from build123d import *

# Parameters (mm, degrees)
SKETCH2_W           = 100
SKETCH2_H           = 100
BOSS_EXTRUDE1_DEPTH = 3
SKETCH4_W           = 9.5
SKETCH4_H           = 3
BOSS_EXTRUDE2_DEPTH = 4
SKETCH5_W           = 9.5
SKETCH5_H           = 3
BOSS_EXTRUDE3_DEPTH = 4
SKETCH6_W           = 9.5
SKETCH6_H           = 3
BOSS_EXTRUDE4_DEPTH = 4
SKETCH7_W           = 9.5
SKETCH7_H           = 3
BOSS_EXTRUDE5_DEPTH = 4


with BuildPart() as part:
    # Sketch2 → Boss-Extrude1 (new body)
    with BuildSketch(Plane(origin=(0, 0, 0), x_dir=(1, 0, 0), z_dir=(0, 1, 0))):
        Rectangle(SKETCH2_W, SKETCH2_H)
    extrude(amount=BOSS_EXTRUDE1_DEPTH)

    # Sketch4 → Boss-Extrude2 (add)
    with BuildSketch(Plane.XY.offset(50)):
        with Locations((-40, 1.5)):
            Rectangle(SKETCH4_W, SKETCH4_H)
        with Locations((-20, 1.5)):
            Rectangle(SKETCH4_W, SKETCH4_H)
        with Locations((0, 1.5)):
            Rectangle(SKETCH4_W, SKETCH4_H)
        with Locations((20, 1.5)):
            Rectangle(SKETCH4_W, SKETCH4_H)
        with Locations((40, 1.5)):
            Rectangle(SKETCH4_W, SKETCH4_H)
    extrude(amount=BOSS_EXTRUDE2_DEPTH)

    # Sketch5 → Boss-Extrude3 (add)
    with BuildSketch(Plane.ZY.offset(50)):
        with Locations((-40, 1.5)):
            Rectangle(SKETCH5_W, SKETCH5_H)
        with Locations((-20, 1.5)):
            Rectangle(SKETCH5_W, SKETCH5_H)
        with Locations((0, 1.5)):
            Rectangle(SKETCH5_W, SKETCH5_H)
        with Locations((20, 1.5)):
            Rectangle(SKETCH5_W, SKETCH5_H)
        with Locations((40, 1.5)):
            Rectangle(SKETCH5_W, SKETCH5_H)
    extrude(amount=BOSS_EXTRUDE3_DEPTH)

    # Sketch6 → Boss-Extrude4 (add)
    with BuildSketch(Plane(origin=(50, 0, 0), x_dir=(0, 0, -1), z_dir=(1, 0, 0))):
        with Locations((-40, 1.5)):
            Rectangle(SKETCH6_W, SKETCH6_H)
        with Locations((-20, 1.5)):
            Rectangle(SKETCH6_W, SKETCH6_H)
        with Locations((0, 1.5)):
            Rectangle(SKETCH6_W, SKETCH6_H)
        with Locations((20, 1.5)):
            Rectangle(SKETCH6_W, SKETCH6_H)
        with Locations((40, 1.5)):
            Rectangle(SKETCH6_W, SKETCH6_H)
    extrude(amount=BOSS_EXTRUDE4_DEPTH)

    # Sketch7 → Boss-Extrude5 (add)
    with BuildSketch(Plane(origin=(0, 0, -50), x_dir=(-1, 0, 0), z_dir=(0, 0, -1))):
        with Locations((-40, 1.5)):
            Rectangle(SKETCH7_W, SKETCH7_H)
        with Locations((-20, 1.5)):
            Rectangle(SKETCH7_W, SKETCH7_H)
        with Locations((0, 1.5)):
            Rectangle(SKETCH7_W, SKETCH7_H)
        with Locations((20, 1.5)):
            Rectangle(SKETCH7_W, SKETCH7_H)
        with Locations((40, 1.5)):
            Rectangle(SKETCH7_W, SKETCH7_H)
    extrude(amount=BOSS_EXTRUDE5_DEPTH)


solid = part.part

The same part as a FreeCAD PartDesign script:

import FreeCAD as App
import Part
import Sketcher

V = App.Vector
Q = App.Units.Quantity

doc = App.newDocument("Part")
body = doc.addObject("PartDesign::Body", "Body")

sketch1 = doc.addObject("Sketcher::SketchObject", "Sketch")
body.addObject(sketch1)
sketch1.AttachmentSupport = (doc.XZ_Plane, [""])
sketch1.MapMode = "FlatFace"
sketch1.addGeometry([
    Part.LineSegment(V(-50, -50, 0), V(-50, 50, 0)),
    Part.LineSegment(V(-50, 50, 0), V(50, 50, 0)),
    Part.LineSegment(V(50, 50, 0), V(50, -50, 0)),
    Part.LineSegment(V(50, -50, 0), V(-50, -50, 0)),
], False)
sketch1.addConstraint([
    Sketcher.Constraint("Coincident", 0, 2, 1, 1),
    Sketcher.Constraint("Coincident", 1, 2, 2, 1),
    Sketcher.Constraint("Coincident", 2, 2, 3, 1),
    Sketcher.Constraint("Coincident", 3, 2, 0, 1),
    Sketcher.Constraint("Vertical", 0),
    Sketcher.Constraint("Horizontal", 1),
    Sketcher.Constraint("Vertical", 2),
    Sketcher.Constraint("Horizontal", 3),
    Sketcher.Constraint("Symmetric", 0, 2, 2, 2, -1, 1),
    Sketcher.Constraint("Equal", 3, 0),
    Sketcher.Constraint("DistanceX", 1, 1, 1, 2, Q("100 mm")),
])
pad1 = doc.addObject("PartDesign::Pad", "Pad")
body.addObject(pad1)
pad1.Profile = sketch1
pad1.Length = 3
pad1.Reversed = True

sketch2 = doc.addObject("Sketcher::SketchObject", "Sketch001")
body.addObject(sketch2)
sketch2.AttachmentSupport = (doc.XY_Plane, [""])
sketch2.MapMode = "FlatFace"
sketch2.AttachmentOffset = App.Placement(V(0, 0, 50), App.Rotation())
sketch2.addGeometry([
    Part.LineSegment(V(-44.75, 3, 0), V(-44.75, 0, 0)),
    Part.LineSegment(V(-44.75, 0, 0), V(-35.25, 0, 0)),
    Part.LineSegment(V(-35.25, 0, 0), V(-35.25, 3, 0)),
    Part.LineSegment(V(-35.25, 3, 0), V(-44.75, 3, 0)),
    Part.LineSegment(V(-24.75, 3, 0), V(-24.75, 0, 0)),
    Part.LineSegment(V(-24.75, 0, 0), V(-15.25, 0, 0)),
    Part.LineSegment(V(-15.25, 0, 0), V(-15.25, 3, 0)),
    Part.LineSegment(V(-15.25, 3, 0), V(-24.75, 3, 0)),
    Part.LineSegment(V(-4.75, 3, 0), V(-4.75, 0, 0)),
    Part.LineSegment(V(-4.75, 0, 0), V(4.75, 0, 0)),
    Part.LineSegment(V(4.75, 0, 0), V(4.75, 3, 0)),
    Part.LineSegment(V(4.75, 3, 0), V(-4.75, 3, 0)),
    Part.LineSegment(V(15.25, 3, 0), V(15.25, 0, 0)),
    Part.LineSegment(V(15.25, 0, 0), V(24.75, 0, 0)),
    Part.LineSegment(V(24.75, 0, 0), V(24.75, 3, 0)),
    Part.LineSegment(V(24.75, 3, 0), V(15.25, 3, 0)),
    Part.LineSegment(V(35.25, 3, 0), V(35.25, 0, 0)),
    Part.LineSegment(V(35.25, 0, 0), V(44.75, 0, 0)),
    Part.LineSegment(V(44.75, 0, 0), V(44.75, 3, 0)),
    Part.LineSegment(V(44.75, 3, 0), V(35.25, 3, 0)),
], False)
sketch2.addConstraint([
    Sketcher.Constraint("Coincident", 0, 2, 1, 1),
    Sketcher.Constraint("Coincident", 1, 2, 2, 1),
    Sketcher.Constraint("Coincident", 2, 2, 3, 1),
    Sketcher.Constraint("Coincident", 3, 2, 0, 1),
    Sketcher.Constraint("Coincident", 4, 2, 5, 1),
    Sketcher.Constraint("Coincident", 5, 2, 6, 1),
    Sketcher.Constraint("Coincident", 6, 2, 7, 1),
    Sketcher.Constraint("Coincident", 7, 2, 4, 1),
    Sketcher.Constraint("Coincident", 8, 2, 9, 1),
    Sketcher.Constraint("Coincident", 9, 2, 10, 1),
    Sketcher.Constraint("Coincident", 10, 2, 11, 1),
    Sketcher.Constraint("Coincident", 11, 2, 8, 1),
    Sketcher.Constraint("Coincident", 12, 2, 13, 1),
    Sketcher.Constraint("Coincident", 13, 2, 14, 1),
    Sketcher.Constraint("Coincident", 14, 2, 15, 1),
    Sketcher.Constraint("Coincident", 15, 2, 12, 1),
    Sketcher.Constraint("Coincident", 16, 2, 17, 1),
    Sketcher.Constraint("Coincident", 17, 2, 18, 1),
    Sketcher.Constraint("Coincident", 18, 2, 19, 1),
    Sketcher.Constraint("Coincident", 19, 2, 16, 1),
    Sketcher.Constraint("Vertical", 0),
    Sketcher.Constraint("Horizontal", 1),
    Sketcher.Constraint("Vertical", 2),
    Sketcher.Constraint("Horizontal", 3),
    Sketcher.Constraint("Vertical", 4),
    Sketcher.Constraint("Horizontal", 5),
    Sketcher.Constraint("Vertical", 6),
    Sketcher.Constraint("Horizontal", 7),
    Sketcher.Constraint("Vertical", 8),
    Sketcher.Constraint("Horizontal", 9),
    Sketcher.Constraint("Vertical", 10),
    Sketcher.Constraint("Horizontal", 11),
    Sketcher.Constraint("Vertical", 12),
    Sketcher.Constraint("Horizontal", 13),
    Sketcher.Constraint("Vertical", 14),
    Sketcher.Constraint("Horizontal", 15),
    Sketcher.Constraint("Vertical", 16),
    Sketcher.Constraint("Horizontal", 17),
    Sketcher.Constraint("Vertical", 18),
    Sketcher.Constraint("Horizontal", 19),
    Sketcher.Constraint("Symmetric", 8, 2, 9, 2, -1, 1),
    Sketcher.Constraint("Symmetric", 5, 2, 12, 2, -1, 1),
    Sketcher.Constraint("Symmetric", 1, 2, 16, 2, -1, 1),
    Sketcher.Constraint("Symmetric", 4, 2, 13, 2, -2),
    Sketcher.Constraint("Symmetric", 0, 2, 17, 2, -2),
    Sketcher.Constraint("Horizontal", 3, 2, 6, 2),
    Sketcher.Constraint("Horizontal", 7, 2, 10, 2),
    Sketcher.Constraint("Horizontal", 11, 2, 14, 2),
    Sketcher.Constraint("Horizontal", 15, 2, 18, 2),
    Sketcher.Constraint("Equal", 3, 5),
    Sketcher.Constraint("Equal", 7, 9),
    Sketcher.Constraint("DistanceY", 0, 2, 0, 1, Q("3 mm")),
    Sketcher.Constraint("DistanceX", 1, 1, 1, 2, Q("9.5 mm")),
    Sketcher.Constraint("DistanceX", 0, 2, 4, 2, Q("20 mm")),
    Sketcher.Constraint("DistanceX", 4, 2, 8, 2, Q("20 mm")),
])
pad2 = doc.addObject("PartDesign::Pad", "Pad001")
body.addObject(pad2)
pad2.Profile = sketch2
pad2.Length = 4

sketch3 = doc.addObject("Sketcher::SketchObject", "Sketch002")
body.addObject(sketch3)
sketch3.AttachmentSupport = (doc.YZ_Plane, [""])
sketch3.MapMode = "FlatFace"
sketch3.AttachmentOffset = App.Placement(V(0, 0, -50), App.Rotation())
sketch3.addGeometry([
    Part.LineSegment(V(3, -44.75, 0), V(0, -44.75, 0)),
    Part.LineSegment(V(0, -44.75, 0), V(0, -35.25, 0)),
    Part.LineSegment(V(0, -35.25, 0), V(3, -35.25, 0)),
    Part.LineSegment(V(3, -35.25, 0), V(3, -44.75, 0)),
    Part.LineSegment(V(3, -24.75, 0), V(0, -24.75, 0)),
    Part.LineSegment(V(0, -24.75, 0), V(0, -15.25, 0)),
    Part.LineSegment(V(0, -15.25, 0), V(3, -15.25, 0)),
    Part.LineSegment(V(3, -15.25, 0), V(3, -24.75, 0)),
    Part.LineSegment(V(3, -4.75, 0), V(0, -4.75, 0)),
    Part.LineSegment(V(0, -4.75, 0), V(0, 4.75, 0)),
    Part.LineSegment(V(0, 4.75, 0), V(3, 4.75, 0)),
    Part.LineSegment(V(3, 4.75, 0), V(3, -4.75, 0)),
    Part.LineSegment(V(3, 15.25, 0), V(0, 15.25, 0)),
    Part.LineSegment(V(0, 15.25, 0), V(0, 24.75, 0)),
    Part.LineSegment(V(0, 24.75, 0), V(3, 24.75, 0)),
    Part.LineSegment(V(3, 24.75, 0), V(3, 15.25, 0)),
    Part.LineSegment(V(3, 35.25, 0), V(0, 35.25, 0)),
    Part.LineSegment(V(0, 35.25, 0), V(0, 44.75, 0)),
    Part.LineSegment(V(0, 44.75, 0), V(3, 44.75, 0)),
    Part.LineSegment(V(3, 44.75, 0), V(3, 35.25, 0)),
], False)
sketch3.addConstraint([
    Sketcher.Constraint("Coincident", 0, 2, 1, 1),
    Sketcher.Constraint("Coincident", 1, 2, 2, 1),
    Sketcher.Constraint("Coincident", 2, 2, 3, 1),
    Sketcher.Constraint("Coincident", 3, 2, 0, 1),
    Sketcher.Constraint("Coincident", 4, 2, 5, 1),
    Sketcher.Constraint("Coincident", 5, 2, 6, 1),
    Sketcher.Constraint("Coincident", 6, 2, 7, 1),
    Sketcher.Constraint("Coincident", 7, 2, 4, 1),
    Sketcher.Constraint("Coincident", 8, 2, 9, 1),
    Sketcher.Constraint("Coincident", 9, 2, 10, 1),
    Sketcher.Constraint("Coincident", 10, 2, 11, 1),
    Sketcher.Constraint("Coincident", 11, 2, 8, 1),
    Sketcher.Constraint("Coincident", 12, 2, 13, 1),
    Sketcher.Constraint("Coincident", 13, 2, 14, 1),
    Sketcher.Constraint("Coincident", 14, 2, 15, 1),
    Sketcher.Constraint("Coincident", 15, 2, 12, 1),
    Sketcher.Constraint("Coincident", 16, 2, 17, 1),
    Sketcher.Constraint("Coincident", 17, 2, 18, 1),
    Sketcher.Constraint("Coincident", 18, 2, 19, 1),
    Sketcher.Constraint("Coincident", 19, 2, 16, 1),
    Sketcher.Constraint("Horizontal", 0),
    Sketcher.Constraint("Vertical", 1),
    Sketcher.Constraint("Horizontal", 2),
    Sketcher.Constraint("Vertical", 3),
    Sketcher.Constraint("Horizontal", 4),
    Sketcher.Constraint("Vertical", 5),
    Sketcher.Constraint("Horizontal", 6),
    Sketcher.Constraint("Vertical", 7),
    Sketcher.Constraint("Horizontal", 8),
    Sketcher.Constraint("Vertical", 9),
    Sketcher.Constraint("Horizontal", 10),
    Sketcher.Constraint("Vertical", 11),
    Sketcher.Constraint("Horizontal", 12),
    Sketcher.Constraint("Vertical", 13),
    Sketcher.Constraint("Horizontal", 14),
    Sketcher.Constraint("Vertical", 15),
    Sketcher.Constraint("Horizontal", 16),
    Sketcher.Constraint("Vertical", 17),
    Sketcher.Constraint("Horizontal", 18),
    Sketcher.Constraint("Vertical", 19),
    Sketcher.Constraint("Symmetric", 8, 2, 9, 2, -1, 1),
    Sketcher.Constraint("Symmetric", 5, 2, 12, 2, -1, 1),
    Sketcher.Constraint("Symmetric", 1, 2, 16, 2, -1, 1),
    Sketcher.Constraint("Symmetric", 4, 2, 13, 2, -1),
    Sketcher.Constraint("Symmetric", 0, 2, 17, 2, -1),
    Sketcher.Constraint("Vertical", 3, 2, 6, 2),
    Sketcher.Constraint("Vertical", 7, 2, 10, 2),
    Sketcher.Constraint("Vertical", 11, 2, 14, 2),
    Sketcher.Constraint("Vertical", 15, 2, 18, 2),
    Sketcher.Constraint("Equal", 3, 5),
    Sketcher.Constraint("Equal", 7, 9),
    Sketcher.Constraint("DistanceX", 0, 2, 0, 1, Q("3 mm")),
    Sketcher.Constraint("DistanceY", 1, 1, 1, 2, Q("9.5 mm")),
    Sketcher.Constraint("DistanceY", 0, 2, 4, 2, Q("20 mm")),
    Sketcher.Constraint("DistanceY", 4, 2, 8, 2, Q("20 mm")),
])
pad3 = doc.addObject("PartDesign::Pad", "Pad002")
body.addObject(pad3)
pad3.Profile = sketch3
pad3.Length = 4
pad3.Reversed = True

sketch4 = doc.addObject("Sketcher::SketchObject", "Sketch003")
body.addObject(sketch4)
sketch4.AttachmentSupport = (doc.YZ_Plane, [""])
sketch4.MapMode = "FlatFace"
sketch4.AttachmentOffset = App.Placement(V(0, 0, 50), App.Rotation())
sketch4.addGeometry([
    Part.LineSegment(V(3, 44.75, 0), V(0, 44.75, 0)),
    Part.LineSegment(V(0, 44.75, 0), V(0, 35.25, 0)),
    Part.LineSegment(V(0, 35.25, 0), V(3, 35.25, 0)),
    Part.LineSegment(V(3, 35.25, 0), V(3, 44.75, 0)),
    Part.LineSegment(V(3, 24.75, 0), V(0, 24.75, 0)),
    Part.LineSegment(V(0, 24.75, 0), V(0, 15.25, 0)),
    Part.LineSegment(V(0, 15.25, 0), V(3, 15.25, 0)),
    Part.LineSegment(V(3, 15.25, 0), V(3, 24.75, 0)),
    Part.LineSegment(V(3, 4.75, 0), V(0, 4.75, 0)),
    Part.LineSegment(V(0, 4.75, 0), V(0, -4.75, 0)),
    Part.LineSegment(V(0, -4.75, 0), V(3, -4.75, 0)),
    Part.LineSegment(V(3, -4.75, 0), V(3, 4.75, 0)),
    Part.LineSegment(V(3, -15.25, 0), V(0, -15.25, 0)),
    Part.LineSegment(V(0, -15.25, 0), V(0, -24.75, 0)),
    Part.LineSegment(V(0, -24.75, 0), V(3, -24.75, 0)),
    Part.LineSegment(V(3, -24.75, 0), V(3, -15.25, 0)),
    Part.LineSegment(V(3, -35.25, 0), V(0, -35.25, 0)),
    Part.LineSegment(V(0, -35.25, 0), V(0, -44.75, 0)),
    Part.LineSegment(V(0, -44.75, 0), V(3, -44.75, 0)),
    Part.LineSegment(V(3, -44.75, 0), V(3, -35.25, 0)),
], False)
sketch4.addConstraint([
    Sketcher.Constraint("Coincident", 0, 2, 1, 1),
    Sketcher.Constraint("Coincident", 1, 2, 2, 1),
    Sketcher.Constraint("Coincident", 2, 2, 3, 1),
    Sketcher.Constraint("Coincident", 3, 2, 0, 1),
    Sketcher.Constraint("Coincident", 4, 2, 5, 1),
    Sketcher.Constraint("Coincident", 5, 2, 6, 1),
    Sketcher.Constraint("Coincident", 6, 2, 7, 1),
    Sketcher.Constraint("Coincident", 7, 2, 4, 1),
    Sketcher.Constraint("Coincident", 8, 2, 9, 1),
    Sketcher.Constraint("Coincident", 9, 2, 10, 1),
    Sketcher.Constraint("Coincident", 10, 2, 11, 1),
    Sketcher.Constraint("Coincident", 11, 2, 8, 1),
    Sketcher.Constraint("Coincident", 12, 2, 13, 1),
    Sketcher.Constraint("Coincident", 13, 2, 14, 1),
    Sketcher.Constraint("Coincident", 14, 2, 15, 1),
    Sketcher.Constraint("Coincident", 15, 2, 12, 1),
    Sketcher.Constraint("Coincident", 16, 2, 17, 1),
    Sketcher.Constraint("Coincident", 17, 2, 18, 1),
    Sketcher.Constraint("Coincident", 18, 2, 19, 1),
    Sketcher.Constraint("Coincident", 19, 2, 16, 1),
    Sketcher.Constraint("Horizontal", 0),
    Sketcher.Constraint("Vertical", 1),
    Sketcher.Constraint("Horizontal", 2),
    Sketcher.Constraint("Vertical", 3),
    Sketcher.Constraint("Horizontal", 4),
    Sketcher.Constraint("Vertical", 5),
    Sketcher.Constraint("Horizontal", 6),
    Sketcher.Constraint("Vertical", 7),
    Sketcher.Constraint("Horizontal", 8),
    Sketcher.Constraint("Vertical", 9),
    Sketcher.Constraint("Horizontal", 10),
    Sketcher.Constraint("Vertical", 11),
    Sketcher.Constraint("Horizontal", 12),
    Sketcher.Constraint("Vertical", 13),
    Sketcher.Constraint("Horizontal", 14),
    Sketcher.Constraint("Vertical", 15),
    Sketcher.Constraint("Horizontal", 16),
    Sketcher.Constraint("Vertical", 17),
    Sketcher.Constraint("Horizontal", 18),
    Sketcher.Constraint("Vertical", 19),
    Sketcher.Constraint("Symmetric", 8, 2, 9, 2, -1, 1),
    Sketcher.Constraint("Symmetric", 5, 2, 12, 2, -1, 1),
    Sketcher.Constraint("Symmetric", 1, 2, 16, 2, -1, 1),
    Sketcher.Constraint("Symmetric", 4, 2, 13, 2, -1),
    Sketcher.Constraint("Symmetric", 0, 2, 17, 2, -1),
    Sketcher.Constraint("Vertical", 3, 2, 6, 2),
    Sketcher.Constraint("Vertical", 7, 2, 10, 2),
    Sketcher.Constraint("Vertical", 11, 2, 14, 2),
    Sketcher.Constraint("Vertical", 15, 2, 18, 2),
    Sketcher.Constraint("Equal", 3, 5),
    Sketcher.Constraint("Equal", 7, 9),
    Sketcher.Constraint("DistanceX", 0, 2, 0, 1, Q("3 mm")),
    Sketcher.Constraint("DistanceY", 1, 2, 1, 1, Q("9.5 mm")),
    Sketcher.Constraint("DistanceY", 4, 2, 0, 2, Q("20 mm")),
    Sketcher.Constraint("DistanceY", 8, 2, 4, 2, Q("20 mm")),
])
pad4 = doc.addObject("PartDesign::Pad", "Pad003")
body.addObject(pad4)
pad4.Profile = sketch4
pad4.Length = 4

sketch5 = doc.addObject("Sketcher::SketchObject", "Sketch004")
body.addObject(sketch5)
sketch5.AttachmentSupport = (doc.XY_Plane, [""])
sketch5.MapMode = "FlatFace"
sketch5.AttachmentOffset = App.Placement(V(0, 0, -50), App.Rotation())
sketch5.addGeometry([
    Part.LineSegment(V(44.75, 3, 0), V(44.75, 0, 0)),
    Part.LineSegment(V(44.75, 0, 0), V(35.25, 0, 0)),
    Part.LineSegment(V(35.25, 0, 0), V(35.25, 3, 0)),
    Part.LineSegment(V(35.25, 3, 0), V(44.75, 3, 0)),
    Part.LineSegment(V(24.75, 3, 0), V(24.75, 0, 0)),
    Part.LineSegment(V(24.75, 0, 0), V(15.25, 0, 0)),
    Part.LineSegment(V(15.25, 0, 0), V(15.25, 3, 0)),
    Part.LineSegment(V(15.25, 3, 0), V(24.75, 3, 0)),
    Part.LineSegment(V(4.75, 3, 0), V(4.75, 0, 0)),
    Part.LineSegment(V(4.75, 0, 0), V(-4.75, 0, 0)),
    Part.LineSegment(V(-4.75, 0, 0), V(-4.75, 3, 0)),
    Part.LineSegment(V(-4.75, 3, 0), V(4.75, 3, 0)),
    Part.LineSegment(V(-15.25, 3, 0), V(-15.25, 0, 0)),
    Part.LineSegment(V(-15.25, 0, 0), V(-24.75, 0, 0)),
    Part.LineSegment(V(-24.75, 0, 0), V(-24.75, 3, 0)),
    Part.LineSegment(V(-24.75, 3, 0), V(-15.25, 3, 0)),
    Part.LineSegment(V(-35.25, 3, 0), V(-35.25, 0, 0)),
    Part.LineSegment(V(-35.25, 0, 0), V(-44.75, 0, 0)),
    Part.LineSegment(V(-44.75, 0, 0), V(-44.75, 3, 0)),
    Part.LineSegment(V(-44.75, 3, 0), V(-35.25, 3, 0)),
], False)
sketch5.addConstraint([
    Sketcher.Constraint("Coincident", 0, 2, 1, 1),
    Sketcher.Constraint("Coincident", 1, 2, 2, 1),
    Sketcher.Constraint("Coincident", 2, 2, 3, 1),
    Sketcher.Constraint("Coincident", 3, 2, 0, 1),
    Sketcher.Constraint("Coincident", 4, 2, 5, 1),
    Sketcher.Constraint("Coincident", 5, 2, 6, 1),
    Sketcher.Constraint("Coincident", 6, 2, 7, 1),
    Sketcher.Constraint("Coincident", 7, 2, 4, 1),
    Sketcher.Constraint("Coincident", 8, 2, 9, 1),
    Sketcher.Constraint("Coincident", 9, 2, 10, 1),
    Sketcher.Constraint("Coincident", 10, 2, 11, 1),
    Sketcher.Constraint("Coincident", 11, 2, 8, 1),
    Sketcher.Constraint("Coincident", 12, 2, 13, 1),
    Sketcher.Constraint("Coincident", 13, 2, 14, 1),
    Sketcher.Constraint("Coincident", 14, 2, 15, 1),
    Sketcher.Constraint("Coincident", 15, 2, 12, 1),
    Sketcher.Constraint("Coincident", 16, 2, 17, 1),
    Sketcher.Constraint("Coincident", 17, 2, 18, 1),
    Sketcher.Constraint("Coincident", 18, 2, 19, 1),
    Sketcher.Constraint("Coincident", 19, 2, 16, 1),
    Sketcher.Constraint("Vertical", 0),
    Sketcher.Constraint("Horizontal", 1),
    Sketcher.Constraint("Vertical", 2),
    Sketcher.Constraint("Horizontal", 3),
    Sketcher.Constraint("Vertical", 4),
    Sketcher.Constraint("Horizontal", 5),
    Sketcher.Constraint("Vertical", 6),
    Sketcher.Constraint("Horizontal", 7),
    Sketcher.Constraint("Vertical", 8),
    Sketcher.Constraint("Horizontal", 9),
    Sketcher.Constraint("Vertical", 10),
    Sketcher.Constraint("Horizontal", 11),
    Sketcher.Constraint("Vertical", 12),
    Sketcher.Constraint("Horizontal", 13),
    Sketcher.Constraint("Vertical", 14),
    Sketcher.Constraint("Horizontal", 15),
    Sketcher.Constraint("Vertical", 16),
    Sketcher.Constraint("Horizontal", 17),
    Sketcher.Constraint("Vertical", 18),
    Sketcher.Constraint("Horizontal", 19),
    Sketcher.Constraint("Symmetric", 8, 2, 9, 2, -1, 1),
    Sketcher.Constraint("Symmetric", 5, 2, 12, 2, -1, 1),
    Sketcher.Constraint("Symmetric", 1, 2, 16, 2, -1, 1),
    Sketcher.Constraint("Symmetric", 4, 2, 13, 2, -2),
    Sketcher.Constraint("Symmetric", 0, 2, 17, 2, -2),
    Sketcher.Constraint("Horizontal", 3, 2, 6, 2),
    Sketcher.Constraint("Horizontal", 7, 2, 10, 2),
    Sketcher.Constraint("Horizontal", 11, 2, 14, 2),
    Sketcher.Constraint("Horizontal", 15, 2, 18, 2),
    Sketcher.Constraint("Equal", 3, 5),
    Sketcher.Constraint("Equal", 7, 9),
    Sketcher.Constraint("DistanceY", 0, 2, 0, 1, Q("3 mm")),
    Sketcher.Constraint("DistanceX", 1, 2, 1, 1, Q("9.5 mm")),
    Sketcher.Constraint("DistanceX", 4, 2, 0, 2, Q("20 mm")),
    Sketcher.Constraint("DistanceX", 8, 2, 4, 2, Q("20 mm")),
])
pad5 = doc.addObject("PartDesign::Pad", "Pad004")
body.addObject(pad5)
pad5.Profile = sketch5
pad5.Length = 4
pad5.Reversed = True

doc.recompute()
